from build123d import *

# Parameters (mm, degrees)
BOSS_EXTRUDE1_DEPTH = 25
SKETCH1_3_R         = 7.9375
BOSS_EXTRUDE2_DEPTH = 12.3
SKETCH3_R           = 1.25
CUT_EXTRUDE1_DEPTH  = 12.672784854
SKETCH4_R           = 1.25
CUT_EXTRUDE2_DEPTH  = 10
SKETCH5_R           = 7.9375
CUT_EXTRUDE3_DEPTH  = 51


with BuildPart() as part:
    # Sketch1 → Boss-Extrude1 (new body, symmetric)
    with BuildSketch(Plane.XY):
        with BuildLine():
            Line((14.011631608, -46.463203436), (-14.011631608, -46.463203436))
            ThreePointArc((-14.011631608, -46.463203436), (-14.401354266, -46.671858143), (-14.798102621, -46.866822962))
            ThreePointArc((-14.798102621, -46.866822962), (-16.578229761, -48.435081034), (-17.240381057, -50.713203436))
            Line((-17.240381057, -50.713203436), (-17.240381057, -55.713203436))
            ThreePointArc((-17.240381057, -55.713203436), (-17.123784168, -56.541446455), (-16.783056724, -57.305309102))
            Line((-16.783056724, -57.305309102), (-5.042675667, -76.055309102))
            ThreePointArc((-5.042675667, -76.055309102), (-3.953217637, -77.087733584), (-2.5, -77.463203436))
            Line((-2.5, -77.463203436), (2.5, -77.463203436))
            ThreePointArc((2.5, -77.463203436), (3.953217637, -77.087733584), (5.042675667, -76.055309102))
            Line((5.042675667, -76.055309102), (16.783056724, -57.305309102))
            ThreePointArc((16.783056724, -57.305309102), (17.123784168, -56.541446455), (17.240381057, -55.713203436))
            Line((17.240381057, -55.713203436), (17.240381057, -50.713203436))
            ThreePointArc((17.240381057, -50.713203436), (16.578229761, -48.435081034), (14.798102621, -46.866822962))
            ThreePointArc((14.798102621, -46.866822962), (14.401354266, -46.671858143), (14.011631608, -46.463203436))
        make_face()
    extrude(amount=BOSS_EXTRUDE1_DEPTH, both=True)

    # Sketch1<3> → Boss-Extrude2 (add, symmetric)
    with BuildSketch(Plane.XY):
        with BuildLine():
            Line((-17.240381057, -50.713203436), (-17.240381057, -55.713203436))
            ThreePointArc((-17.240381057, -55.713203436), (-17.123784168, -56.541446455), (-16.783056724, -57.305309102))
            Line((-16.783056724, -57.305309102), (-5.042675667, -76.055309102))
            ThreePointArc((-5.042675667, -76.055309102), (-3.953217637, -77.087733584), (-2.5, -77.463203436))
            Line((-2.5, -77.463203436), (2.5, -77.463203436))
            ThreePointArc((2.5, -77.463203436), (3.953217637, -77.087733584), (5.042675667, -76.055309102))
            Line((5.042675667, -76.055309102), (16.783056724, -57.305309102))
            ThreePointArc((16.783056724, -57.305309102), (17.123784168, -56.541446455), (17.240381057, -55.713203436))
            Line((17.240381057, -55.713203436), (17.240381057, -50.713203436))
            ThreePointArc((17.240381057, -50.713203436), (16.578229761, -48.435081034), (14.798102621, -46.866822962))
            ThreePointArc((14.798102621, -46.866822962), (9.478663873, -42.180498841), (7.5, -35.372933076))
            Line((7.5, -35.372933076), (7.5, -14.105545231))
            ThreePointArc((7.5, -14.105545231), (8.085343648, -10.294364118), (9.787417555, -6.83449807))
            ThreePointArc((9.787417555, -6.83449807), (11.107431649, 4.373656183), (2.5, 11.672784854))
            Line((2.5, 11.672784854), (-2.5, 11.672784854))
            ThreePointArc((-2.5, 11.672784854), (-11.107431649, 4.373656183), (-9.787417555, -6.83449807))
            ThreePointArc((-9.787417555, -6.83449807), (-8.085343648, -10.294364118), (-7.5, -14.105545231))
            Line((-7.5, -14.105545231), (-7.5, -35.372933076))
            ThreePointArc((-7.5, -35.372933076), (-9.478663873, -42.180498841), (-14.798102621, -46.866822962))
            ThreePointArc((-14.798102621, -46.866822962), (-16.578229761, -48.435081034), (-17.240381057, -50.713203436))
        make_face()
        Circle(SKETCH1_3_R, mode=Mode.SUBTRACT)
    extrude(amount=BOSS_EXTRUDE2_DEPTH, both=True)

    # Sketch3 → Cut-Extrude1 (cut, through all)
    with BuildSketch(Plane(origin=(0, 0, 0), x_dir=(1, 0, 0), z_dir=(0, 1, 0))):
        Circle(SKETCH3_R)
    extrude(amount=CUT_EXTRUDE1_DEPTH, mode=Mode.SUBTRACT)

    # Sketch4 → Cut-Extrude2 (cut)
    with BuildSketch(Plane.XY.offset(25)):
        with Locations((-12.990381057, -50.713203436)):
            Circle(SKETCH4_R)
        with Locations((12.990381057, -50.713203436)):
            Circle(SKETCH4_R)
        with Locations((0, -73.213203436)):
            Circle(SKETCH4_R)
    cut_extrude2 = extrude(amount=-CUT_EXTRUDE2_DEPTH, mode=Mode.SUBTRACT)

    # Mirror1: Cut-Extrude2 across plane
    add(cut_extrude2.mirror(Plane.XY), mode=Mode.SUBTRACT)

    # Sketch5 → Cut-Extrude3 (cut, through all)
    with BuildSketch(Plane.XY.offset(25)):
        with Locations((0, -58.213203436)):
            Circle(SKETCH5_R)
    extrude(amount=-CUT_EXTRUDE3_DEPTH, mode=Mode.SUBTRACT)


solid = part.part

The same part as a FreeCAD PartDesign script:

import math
import FreeCAD as App
import Part
import Sketcher

doc = App.newDocument("Part")
params = doc.addObject("Spreadsheet::Sheet", "Params")
for row, (alias, value) in enumerate([
    ("sketch1_radius", "3 mm"),
    ("sketch1_radius2", "12.699999 mm"),
    ("sketch1_width", "5 mm"),
    ("sketch1_radius3", "4.25 mm"),
    ("pad1_length", "50 mm"),
    ("sketch2_radius", "3 mm"),
    ("sketch2_radius2", "12.7 mm"),
    ("sketch2_width", "5 mm"),
    ("sketch2_radius3", "4.25 mm"),
    ("pad2_length", "24.6 mm"),
    ("sketch3_diameter", "2.5 mm"),
    ("sketch4_diameter", "2.5 mm"),
    ("pocket2_length", "10 mm"),
], start=1):
    params.set(f"A{row}", alias)
    params.set(f"B{row}", "=" + value)
    params.setAlias(f"B{row}", alias)

body = doc.addObject("PartDesign::Body", "Body")

# Sketch on XY plane
sketch1 = body.newObject("Sketcher::SketchObject", "Sketch")
sketch1.AttachmentSupport = (doc.getObject("XY_Plane"), [""])
sketch1.MapMode = "FlatFace"
sketch1.addGeometry([
    Part.LineSegment(App.Vector(14, -46.5, 0), App.Vector(-14, -46.5, 0)),  # 0
    Part.ArcOfCircle(Part.Circle(App.Vector(-20.2, -35.4, 0), App.Vector(0, 0, 1), 12.7), math.radians(-64.83), math.radians(-60.84)),  # 1
    Part.ArcOfCircle(Part.Circle(App.Vector(-13, -50.7, 0), App.Vector(0, 0, 1), 4.3), math.radians(115), math.radians(180)),  # 2
    Part.LineSegment(App.Vector(-17.2, -50.7, 0), App.Vector(-17.2, -55.7, 0)),  # 3
    Part.ArcOfCircle(Part.Circle(App.Vector(-14.2, -55.7, 0), App.Vector(0, 0, 1), 3), math.radians(-180), math.radians(-148)),  # 4
    Part.LineSegment(App.Vector(-16.8, -57.3, 0), App.Vector(-5, -76.1, 0)),  # 5
    Part.ArcOfCircle(Part.Circle(App.Vector(-2.5, -74.5, 0), App.Vector(0, 0, 1), 3), math.radians(-148), math.radians(-90)),  # 6
    Part.LineSegment(App.Vector(-2.5, -77.5, 0), App.Vector(2.5, -77.5, 0)),  # 7
    Part.ArcOfCircle(Part.Circle(App.Vector(2.5, -74.5, 0), App.Vector(0, 0, 1), 3), math.radians(-90), math.radians(-32)),  # 8
    Part.LineSegment(App.Vector(5, -76.1, 0), App.Vector(16.8, -57.3, 0)),  # 9
    Part.ArcOfCircle(Part.Circle(App.Vector(14.2, -55.7, 0), App.Vector(0, 0, 1), 3), math.radians(-32), math.radians(0)),  # 10
    Part.LineSegment(App.Vector(17.2, -55.7, 0), App.Vector(17.2, -50.7, 0)),  # 11
    Part.ArcOfCircle(Part.Circle(App.Vector(13, -50.7, 0), App.Vector(0, 0, 1), 4.3), math.radians(0), math.radians(65)),  # 12
    Part.ArcOfCircle(Part.Circle(App.Vector(20.2, -35.4, 0), App.Vector(0, 0, 1), 12.7), math.radians(-119.16), math.radians(-115.17)),  # 13
], False)
sketch1.addConstraint([
    Sketcher.Constraint("Coincident", 0, 2, 1, 2),
    Sketcher.Constraint("Tangent", 1, 1, 2, 1),
    Sketcher.Constraint("Tangent", 2, 2, 3, 1),
    Sketcher.Constraint("Tangent", 3, 2, 4, 1),
    Sketcher.Constraint("Tangent", 4, 2, 5, 1),
    Sketcher.Constraint("Tangent", 5, 2, 6, 1),
    Sketcher.Constraint("Tangent", 6, 2, 7, 1),
    Sketcher.Constraint("Tangent", 7, 2, 8, 1),
    Sketcher.Constraint("Tangent", 8, 2, 9, 1),
    Sketcher.Constraint("Tangent", 9, 2, 10, 1),
    Sketcher.Constraint("Tangent", 10, 2, 11, 1),
    Sketcher.Constraint("Tangent", 11, 2, 12, 1),
    Sketcher.Constraint("Tangent", 12, 2, 13, 2),
    Sketcher.Constraint("Coincident", 13, 1, 0, 1),
    Sketcher.Constraint("Horizontal", 0),
    Sketcher.Constraint("Vertical", 3),
    Sketcher.Constraint("Horizontal", 7),
    Sketcher.Constraint("Vertical", 11),
    Sketcher.Constraint("Equal", 4, 6),
    Sketcher.Constraint("Equal", 6, 8),
    Sketcher.Constraint("Equal", 8, 10),
    Sketcher.Constraint("Equal", 2, 12),
    Sketcher.Constraint("Equal", 1, 13),
    Sketcher.Constraint("Symmetric", 4, 3, 10, 3, -2),
    Sketcher.Constraint("Symmetric", 1, 3, 13, 3, -2),
    Sketcher.Constraint("Horizontal", 5, 2, 8, 2),
    Sketcher.Constraint("Equal", 7, 3),
    Sketcher.Constraint("Radius", 4, 3.0),
    Sketcher.Constraint("Radius", 1, 12.699999),
    Sketcher.Constraint("DistanceX", 7, 1, 7, 2, 5.0),
    Sketcher.Constraint("Radius", 2, 4.25),
    Sketcher.Constraint("DistanceX", 1, 3, -1, 1, 20.2),
    Sketcher.Constraint("DistanceY", 6, 3, 4, 3, 18.75),
    Sketcher.Constraint("DistanceY", 2, 3, 0, 2, 4.25),
    Sketcher.Constraint("DistanceX", 0, 2, 0, 1, 28.023263),
    Sketcher.Constraint("DistanceY", 4, 2, -1, 1, 57.305309),
])
sketch1.setExpression("Constraints[27]", "Params.sketch1_radius")
sketch1.setExpression("Constraints[28]", "Params.sketch1_radius2")
sketch1.setExpression("Constraints[29]", "Params.sketch1_width")
sketch1.setExpression("Constraints[30]", "Params.sketch1_radius3")
pad1 = body.newObject("PartDesign::Pad", "Pad")
pad1.Profile = sketch1
pad1.setExpression("Length", "Params.pad1_length")
pad1.Midplane = True

# Sketch on XY plane
sketch2 = body.newObject("Sketcher::SketchObject", "Sketch001")
sketch2.AttachmentSupport = (doc.getObject("XY_Plane"), [""])
sketch2.MapMode = "FlatFace"
sketch2.addGeometry([
    Part.LineSegment(App.Vector(-17.2, -50.7, 0), App.Vector(-17.2, -55.7, 0)),  # 0
    Part.ArcOfCircle(Part.Circle(App.Vector(-14.2, -55.7, 0), App.Vector(0, 0, 1), 3), math.radians(-180), math.radians(-148)),  # 1
    Part.LineSegment(App.Vector(-16.8, -57.3, 0), App.Vector(-5, -76.1, 0)),  # 2
    Part.ArcOfCircle(Part.Circle(App.Vector(-2.5, -74.5, 0), App.Vector(0, 0, 1), 3), math.radians(-148), math.radians(-90)),  # 3
    Part.LineSegment(App.Vector(-2.5, -77.5, 0), App.Vector(2.5, -77.5, 0)),  # 4
    Part.ArcOfCircle(Part.Circle(App.Vector(2.5, -74.5, 0), App.Vector(0, 0, 1), 3), math.radians(-90), math.radians(-32)),  # 5
    Part.LineSegment(App.Vector(5, -76.1, 0), App.Vector(16.8, -57.3, 0)),  # 6
    Part.ArcOfCircle(Part.Circle(App.Vector(14.2, -55.7, 0), App.Vector(0, 0, 1), 3), math.radians(-32), math.radians(0)),  # 7
    Part.LineSegment(App.Vector(17.2, -55.7, 0), App.Vector(17.2, -50.7, 0)),  # 8
    Part.ArcOfCircle(Part.Circle(App.Vector(13, -50.7, 0), App.Vector(0, 0, 1), 4.3), math.radians(0), math.radians(65)),  # 9
    Part.ArcOfCircle(Part.Circle(App.Vector(20.2, -35.4, 0), App.Vector(0, 0, 1), 12.7), math.radians(-180), math.radians(-115)),  # 10
    Part.LineSegment(App.Vector(7.5, -35.4, 0), App.Vector(7.5, -14.1, 0)),  # 11
    Part.ArcOfCircle(Part.Circle(App.Vector(20.2, -14.1, 0), App.Vector(0, 0, 1), 12.7), math.radians(145), math.radians(180)),  # 12
    Part.ArcOfCircle(Part.Circle(App.Vector(0, 0, 0), App.Vector(0, 0, 1), 11.9), math.radians(-35), math.radians(78)),  # 13
    Part.LineSegment(App.Vector(2.5, 11.7, 0), App.Vector(-2.5, 11.7, 0)),  # 14
    Part.ArcOfCircle(Part.Circle(App.Vector(0, 0, 0), App.Vector(0, 0, 1), 11.9), math.radians(102), math.radians(215)),  # 15
    Part.ArcOfCircle(Part.Circle(App.Vector(-20.2, -14.1, 0), App.Vector(0, 0, 1), 12.7), math.radians(0), math.radians(35)),  # 16
    Part.LineSegment(App.Vector(-7.5, -14.1, 0), App.Vector(-7.5, -35.4, 0)),  # 17
    Part.ArcOfCircle(Part.Circle(App.Vector(-20.2, -35.4, 0), App.Vector(0, 0, 1), 12.7), math.radians(-65), math.radians(0)),  # 18
    Part.ArcOfCircle(Part.Circle(App.Vector(-13, -50.7, 0), App.Vector(0, 0, 1), 4.3), math.radians(115), math.radians(180)),  # 19
    Part.Circle(App.Vector(0, 0, 0), App.Vector(0, 0, 1), 7.9),  # 20
], False)
sketch2.addConstraint([
    Sketcher.Constraint("Tangent", 0, 2, 1, 1),
    Sketcher.Constraint("Tangent", 1, 2, 2, 1),
    Sketcher.Constraint("Tangent", 2, 2, 3, 1),
    Sketcher.Constraint("Tangent", 3, 2, 4, 1),
    Sketcher.Constraint("Tangent", 4, 2, 5, 1),
    Sketcher.Constraint("Tangent", 5, 2, 6, 1),
    Sketcher.Constraint("Tangent", 6, 2, 7, 1),
    Sketcher.Constraint("Tangent", 7, 2, 8, 1),
    Sketcher.Constraint("Tangent", 8, 2, 9, 1),
    Sketcher.Constraint("Tangent", 9, 2, 10, 2),
    Sketcher.Constraint("Tangent", 10, 1, 11, 1),
    Sketcher.Constraint("Tangent", 11, 2, 12, 2),
    Sketcher.Constraint("Tangent", 12, 1, 13, 1),
    Sketcher.Constraint("Coincident", 13, 2, 14, 1),
    Sketcher.Constraint("Coincident", 14, 2, 15, 1),
    Sketcher.Constraint("Tangent", 15, 2, 16, 2),
    Sketcher.Constraint("Tangent", 16, 1, 17, 1),
    Sketcher.Constraint("Tangent", 17, 2, 18, 2),
    Sketcher.Constraint("Tangent", 18, 1, 19, 1),
    Sketcher.Constraint("Tangent", 19, 2, 0, 1),
    Sketcher.Constraint("Vertical", 0),
    Sketcher.Constraint("Horizontal", 4),
    Sketcher.Constraint("Vertical", 8),
    Sketcher.Constraint("Vertical", 11),
    Sketcher.Constraint("Horizontal", 14),
    Sketcher.Constraint("Vertical", 17),
    Sketcher.Constraint("Coincident", 13, 3, -1, 1),
    Sketcher.Constraint("Coincident", 15, 3, -1, 1),
    Sketcher.Constraint("Coincident", 20, 3, -1, 1),
    Sketcher.Constraint("Equal", 1, 3),
    Sketcher.Constraint("Equal", 3, 5),
    Sketcher.Constraint("Equal", 5, 7),
    Sketcher.Constraint("Equal", 10, 12),
    Sketcher.Constraint("Equal", 13, 15),
    Sketcher.Constraint("Equal", 12, 16),
    Sketcher.Constraint("Equal", 16, 18),
    Sketcher.Constraint("Equal", 9, 19),
    Sketcher.Constraint("Symmetric", 1, 3, 7, 3, -2),
    Sketcher.Constraint("Symmetric", 10, 3, 18, 3, -2),
    Sketcher.Constraint("Horizontal", 2, 2, 5, 2),
    Sketcher.Constraint("Vertical", 4, 2, 13, 2),
    Sketcher.Constraint("Equal", 14, 0),
    Sketcher.Constraint("Radius", 1, 3.0),
    Sketcher.Constraint("Radius", 10, 12.7),
    Sketcher.Constraint("DistanceX", 4, 1, 4, 2, 5.0),
    Sketcher.Constraint("Radius", 9, 4.25),
    Sketcher.Constraint("Diameter", 20, 15.875),
    Sketcher.Constraint("DistanceX", 13, 2, 11, 2, 5.0),
    Sketcher.Constraint("Radius", 13, 11.9375),
    Sketcher.Constraint("DistanceY", 3, 3, 1, 3, 18.75),
    Sketcher.Constraint("DistanceY", 11, 1, 11, 2, 21.267388),
    Sketcher.Constraint("DistanceX", 1, 3, -1, 1, 14.240381),
])
sketch2.setExpression("Constraints[42]", "Params.sketch2_radius")
sketch2.setExpression("Constraints[43]", "Params.sketch2_radius2")
sketch2.setExpression("Constraints[44]", "Params.sketch2_width")
sketch2.setExpression("Constraints[45]", "Params.sketch2_radius3")
pad2 = body.newObject("PartDesign::Pad", "Pad001")
pad2.Profile = sketch2
pad2.setExpression("Length", "Params.pad2_length")
pad2.Midplane = True

# Sketch on XZ plane
sketch3 = body.newObject("Sketcher::SketchObject", "Sketch002")
sketch3.AttachmentSupport = (doc.getObject("XZ_Plane"), [""])
sketch3.MapMode = "FlatFace"
sketch3.addGeometry(Part.Circle(App.Vector(0, 0, 0), App.Vector(0, 0, 1), 1.2), False)
sketch3.addConstraint([
    Sketcher.Constraint("Coincident", 0, 3, -1, 1),
    Sketcher.Constraint("Diameter", 0, 2.5),
])
sketch3.setExpression("Constraints[1]", "Params.sketch3_diameter")
pocket1 = body.newObject("PartDesign::Pocket", "Pocket")
pocket1.Profile = sketch3
pocket1.Type = "ThroughAll"

# Sketch on XY plane
sketch4 = body.newObject("Sketcher::SketchObject", "Sketch003")
sketch4.AttachmentSupport = (doc.getObject("XY_Plane"), [""])
sketch4.MapMode = "FlatFace"
sketch4.AttachmentOffset = App.Placement(App.Vector(0, 0, 25), App.Rotation())
sketch4.addGeometry([
    Part.Circle(App.Vector(-13, -50.7, 0), App.Vector(0, 0, 1), 1.2),
    Part.Circle(App.Vector(13, -50.7, 0), App.Vector(0, 0, 1), 1.2),
    Part.Circle(App.Vector(0, -73.2, 0), App.Vector(0, 0, 1), 1.2),
], False)
sketch4.addConstraint([
    Sketcher.Constraint("Equal", 0, 1),
    Sketcher.Constraint("Equal", 1, 2),
    Sketcher.Constraint("Symmetric", 0, 3, 1, 3, -2),
    Sketcher.Constraint("PointOnObject", 2, 3, -2),
    Sketcher.Constraint("Diameter", 0, 2.5),
    Sketcher.Constraint("DistanceY", 2, 3, 0, 3, 22.5),
    Sketcher.Constraint("DistanceX", 0, 3, -1, 1, 12.990381),
    Sketcher.Constraint("DistanceY", 0, 3, -1, 1, 50.713203),
])
sketch4.setExpression("Constraints[4]", "Params.sketch4_diameter")
pocket2 = body.newObject("PartDesign::Pocket", "Pocket001")
pocket2.Profile = sketch4
pocket2.setExpression("Length", "Params.pocket2_length")
doc.recompute()

mirrored = body.newObject("PartDesign::Mirrored", "Mirrored")
mirrored.Originals = [pocket2]
mirrored.MirrorPlane = (doc.getObject("XY_Plane"), [""])
body.Tip = mirrored

# Sketch on XY plane
sketch5 = body.newObject("Sketcher::SketchObject", "Sketch004")
sketch5.AttachmentSupport = (doc.getObject("XY_Plane"), [""])
sketch5.MapMode = "FlatFace"
sketch5.AttachmentOffset = App.Placement(App.Vector(0, 0, 25), App.Rotation())
sketch5.addGeometry(Part.Circle(App.Vector(0, -58, 0), App.Vector(0, 0, 1), 8), False)
sketch5.addConstraint([
    Sketcher.Constraint("PointOnObject", 0, 3, -2),
    Sketcher.Constraint("Diameter", 0, 15.875),
    Sketcher.Constraint("DistanceY", 0, 3, -1, 1, 58.213203),
])
pocket3 = body.newObject("PartDesign::Pocket", "Pocket002")
pocket3.Profile = sketch5
pocket3.Type = "ThroughAll"

doc.recompute()
